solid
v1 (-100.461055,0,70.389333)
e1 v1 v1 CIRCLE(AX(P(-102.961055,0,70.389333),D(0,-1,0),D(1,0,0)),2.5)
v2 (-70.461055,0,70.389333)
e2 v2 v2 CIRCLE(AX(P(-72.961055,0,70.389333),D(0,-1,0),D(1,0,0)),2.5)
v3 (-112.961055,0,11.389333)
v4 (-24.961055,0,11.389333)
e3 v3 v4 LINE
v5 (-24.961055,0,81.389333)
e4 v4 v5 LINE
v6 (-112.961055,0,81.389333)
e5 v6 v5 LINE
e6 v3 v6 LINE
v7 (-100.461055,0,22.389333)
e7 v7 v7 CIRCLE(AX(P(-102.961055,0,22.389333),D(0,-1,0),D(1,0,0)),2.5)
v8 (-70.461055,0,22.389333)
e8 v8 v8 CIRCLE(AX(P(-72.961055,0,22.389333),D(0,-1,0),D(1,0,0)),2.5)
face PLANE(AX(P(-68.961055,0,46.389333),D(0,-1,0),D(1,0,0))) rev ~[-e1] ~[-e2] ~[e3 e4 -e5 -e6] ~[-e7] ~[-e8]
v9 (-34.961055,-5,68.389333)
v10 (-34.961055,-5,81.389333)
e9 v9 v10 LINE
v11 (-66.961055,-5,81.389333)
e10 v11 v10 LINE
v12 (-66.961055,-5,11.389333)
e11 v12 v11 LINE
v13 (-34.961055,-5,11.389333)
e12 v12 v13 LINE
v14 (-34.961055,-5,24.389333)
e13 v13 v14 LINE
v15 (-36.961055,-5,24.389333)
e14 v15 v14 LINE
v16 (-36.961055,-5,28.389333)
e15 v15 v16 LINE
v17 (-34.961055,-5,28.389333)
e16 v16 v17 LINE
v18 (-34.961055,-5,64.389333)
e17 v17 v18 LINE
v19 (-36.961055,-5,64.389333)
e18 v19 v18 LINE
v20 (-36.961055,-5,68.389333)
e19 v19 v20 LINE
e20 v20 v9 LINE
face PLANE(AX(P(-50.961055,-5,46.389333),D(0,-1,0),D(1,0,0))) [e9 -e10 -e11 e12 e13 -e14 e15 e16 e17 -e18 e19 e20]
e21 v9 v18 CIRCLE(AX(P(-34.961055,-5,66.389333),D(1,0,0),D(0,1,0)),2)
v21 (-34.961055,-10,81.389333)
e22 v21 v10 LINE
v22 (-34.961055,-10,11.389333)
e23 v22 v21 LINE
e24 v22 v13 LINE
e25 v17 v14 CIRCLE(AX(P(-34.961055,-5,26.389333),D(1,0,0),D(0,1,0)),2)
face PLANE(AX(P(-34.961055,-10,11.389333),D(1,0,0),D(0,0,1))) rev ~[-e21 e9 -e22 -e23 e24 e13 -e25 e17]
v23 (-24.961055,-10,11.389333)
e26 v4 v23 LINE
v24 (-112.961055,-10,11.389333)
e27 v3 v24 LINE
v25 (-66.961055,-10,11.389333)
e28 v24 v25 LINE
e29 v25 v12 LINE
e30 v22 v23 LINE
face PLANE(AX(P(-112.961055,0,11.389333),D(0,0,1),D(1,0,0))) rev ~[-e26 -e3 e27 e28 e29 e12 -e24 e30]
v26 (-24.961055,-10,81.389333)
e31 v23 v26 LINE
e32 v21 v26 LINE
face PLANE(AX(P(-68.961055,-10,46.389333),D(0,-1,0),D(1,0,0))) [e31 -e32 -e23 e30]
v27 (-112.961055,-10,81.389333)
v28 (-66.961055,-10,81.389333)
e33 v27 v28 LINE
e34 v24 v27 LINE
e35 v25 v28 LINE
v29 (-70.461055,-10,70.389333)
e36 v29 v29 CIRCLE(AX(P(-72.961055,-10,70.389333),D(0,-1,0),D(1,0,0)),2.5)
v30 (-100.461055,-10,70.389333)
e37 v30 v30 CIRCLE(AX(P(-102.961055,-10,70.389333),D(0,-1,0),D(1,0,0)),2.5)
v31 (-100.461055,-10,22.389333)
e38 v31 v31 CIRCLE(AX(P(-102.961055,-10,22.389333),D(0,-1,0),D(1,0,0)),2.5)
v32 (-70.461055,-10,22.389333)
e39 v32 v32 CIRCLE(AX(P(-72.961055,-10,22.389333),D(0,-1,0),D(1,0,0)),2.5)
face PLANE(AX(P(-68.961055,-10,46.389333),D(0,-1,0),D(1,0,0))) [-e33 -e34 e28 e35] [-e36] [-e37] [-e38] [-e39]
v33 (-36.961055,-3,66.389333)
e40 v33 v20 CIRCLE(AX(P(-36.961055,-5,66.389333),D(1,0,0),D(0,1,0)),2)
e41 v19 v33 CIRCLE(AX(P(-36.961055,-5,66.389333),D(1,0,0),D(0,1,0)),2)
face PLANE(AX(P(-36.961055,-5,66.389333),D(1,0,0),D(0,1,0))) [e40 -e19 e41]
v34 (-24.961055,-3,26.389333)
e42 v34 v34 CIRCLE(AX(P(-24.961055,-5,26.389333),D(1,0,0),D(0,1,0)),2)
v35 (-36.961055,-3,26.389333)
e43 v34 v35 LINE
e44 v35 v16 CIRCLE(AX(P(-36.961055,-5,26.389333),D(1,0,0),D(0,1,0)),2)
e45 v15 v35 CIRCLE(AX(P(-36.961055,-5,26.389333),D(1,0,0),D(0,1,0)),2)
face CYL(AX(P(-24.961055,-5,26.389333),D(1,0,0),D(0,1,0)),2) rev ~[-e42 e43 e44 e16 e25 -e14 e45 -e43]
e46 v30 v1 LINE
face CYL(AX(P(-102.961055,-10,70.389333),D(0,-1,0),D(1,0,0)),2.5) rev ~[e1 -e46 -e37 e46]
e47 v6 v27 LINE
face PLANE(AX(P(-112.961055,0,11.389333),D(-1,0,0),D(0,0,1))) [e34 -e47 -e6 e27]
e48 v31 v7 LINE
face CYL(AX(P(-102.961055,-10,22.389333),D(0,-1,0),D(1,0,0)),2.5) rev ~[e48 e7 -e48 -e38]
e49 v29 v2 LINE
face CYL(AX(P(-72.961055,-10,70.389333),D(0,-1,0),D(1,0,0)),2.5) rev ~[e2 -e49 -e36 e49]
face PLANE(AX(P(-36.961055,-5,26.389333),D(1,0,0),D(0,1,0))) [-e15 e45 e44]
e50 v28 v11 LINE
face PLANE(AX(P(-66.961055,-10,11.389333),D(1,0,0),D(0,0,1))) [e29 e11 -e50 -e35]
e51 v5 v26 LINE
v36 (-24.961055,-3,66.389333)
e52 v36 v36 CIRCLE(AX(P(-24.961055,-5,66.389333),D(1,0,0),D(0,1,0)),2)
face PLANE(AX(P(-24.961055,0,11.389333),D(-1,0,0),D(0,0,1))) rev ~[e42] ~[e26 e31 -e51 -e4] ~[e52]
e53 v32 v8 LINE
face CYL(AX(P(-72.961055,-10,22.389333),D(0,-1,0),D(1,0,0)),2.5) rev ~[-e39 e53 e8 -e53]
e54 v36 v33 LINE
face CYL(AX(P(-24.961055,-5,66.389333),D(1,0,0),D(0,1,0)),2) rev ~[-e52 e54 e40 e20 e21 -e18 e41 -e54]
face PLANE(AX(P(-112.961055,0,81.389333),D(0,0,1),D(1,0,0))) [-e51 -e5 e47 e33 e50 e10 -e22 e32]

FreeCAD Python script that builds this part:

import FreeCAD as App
import Part
import Sketcher

V = App.Vector

doc = App.newDocument("Part")
body = doc.addObject("PartDesign::Body", "Body")

sketch1 = body.newObject("Sketcher::SketchObject", "Sketch")
sketch1.AttachmentSupport = (doc.getObject("XZ_Plane"), [""])
sketch1.MapMode = "FlatFace"
sketch1.addGeometry(Part.LineSegment(V(-113, 81, 0), V(-113, 11, 0)), False)
sketch1.addGeometry(Part.LineSegment(V(-113, 11, 0), V(-25, 11, 0)), False)
sketch1.addGeometry(Part.LineSegment(V(-25, 11, 0), V(-25, 81, 0)), False)
sketch1.addGeometry(Part.LineSegment(V(-25, 81, 0), V(-113, 81, 0)), False)
sketch1.addConstraint(Sketcher.Constraint("Coincident", 0, 2, 1, 1))
sketch1.addConstraint(Sketcher.Constraint("Coincident", 1, 2, 2, 1))
sketch1.addConstraint(Sketcher.Constraint("Coincident", 2, 2, 3, 1))
sketch1.addConstraint(Sketcher.Constraint("Coincident", 3, 2, 0, 1))
sketch1.addConstraint(Sketcher.Constraint("Vertical", 0))
sketch1.addConstraint(Sketcher.Constraint("Horizontal", 1))
sketch1.addConstraint(Sketcher.Constraint("Vertical", 2))
sketch1.addConstraint(Sketcher.Constraint("Horizontal", 3))
sketch1.addConstraint(Sketcher.Constraint("DistanceX", 1, 1, 1, 2, 88.0))
sketch1.addConstraint(Sketcher.Constraint("DistanceY", 0, 2, 0, 1, 70.0))
sketch1.addConstraint(Sketcher.Constraint("DistanceX", 0, 2, -1, 1, 112.961055))
sketch1.addConstraint(Sketcher.Constraint("DistanceY", -1, 1, 0, 2, 11.389333))
pad1 = body.newObject("PartDesign::Pad", "Pad")
pad1.Profile = sketch1
pad1.Length = 10

sketch2 = body.newObject("Sketcher::SketchObject", "Sketch001")
sketch2.AttachmentSupport = (doc.getObject("XZ_Plane"), [""])
sketch2.MapMode = "FlatFace"
sketch2.AttachmentOffset = App.Placement(V(0, 0, 10), App.Rotation())
sketch2.addGeometry(Part.LineSegment(V(-67, 81, 0), V(-67, 11, 0)), False)
sketch2.addGeometry(Part.LineSegment(V(-67, 11, 0), V(-35, 11, 0)), False)
sketch2.addGeometry(Part.LineSegment(V(-35, 11, 0), V(-35, 81, 0)), False)
sketch2.addGeometry(Part.LineSegment(V(-35, 81, 0), V(-67, 81, 0)), False)
sketch2.addConstraint(Sketcher.Constraint("Coincident", 0, 2, 1, 1))
sketch2.addConstraint(Sketcher.Constraint("Coincident", 1, 2, 2, 1))
sketch2.addConstraint(Sketcher.Constraint("Coincident", 2, 2, 3, 1))
sketch2.addConstraint(Sketcher.Constraint("Coincident", 3, 2, 0, 1))
sketch2.addConstraint(Sketcher.Constraint("Vertical", 0))
sketch2.addConstraint(Sketcher.Constraint("Horizontal", 1))
sketch2.addConstraint(Sketcher.Constraint("Vertical", 2))
sketch2.addConstraint(Sketcher.Constraint("Horizontal", 3))
sketch2.addConstraint(Sketcher.Constraint("DistanceX", 1, 1, 1, 2, 32.0))
sketch2.addConstraint(Sketcher.Constraint("DistanceY", 0, 2, 0, 1, 70.0))
sketch2.addConstraint(Sketcher.Constraint("DistanceX", 0, 2, -1, 1, 66.961055))
sketch2.addConstraint(Sketcher.Constraint("DistanceY", -1, 1, 0, 2, 11.389333))
pocket1 = body.newObject("PartDesign::Pocket", "Pocket")
pocket1.Profile = sketch2
pocket1.Length = 5

sketch3 = body.newObject("Sketcher::SketchObject", "Sketch002")
sketch3.AttachmentSupport = (doc.getObject("XZ_Plane"), [""])
sketch3.MapMode = "FlatFace"
sketch3.AttachmentOffset = App.Placement(V(0, 0, 10), App.Rotation())
sketch3.addGeometry(Part.Circle(V(-103, 70.4, 0), V(0, 0, 1), 2.5), False)
sketch3.addGeometry(Part.Circle(V(-73, 70.4, 0), V(0, 0, 1), 2.5), False)
sketch3.addGeometry(Part.Circle(V(-103, 22.4, 0), V(0, 0, 1), 2.5), False)
sketch3.addGeometry(Part.Circle(V(-73, 22.4, 0), V(0, 0, 1), 2.5), False)
sketch3.addConstraint(Sketcher.Constraint("Equal", 0, 1))
sketch3.addConstraint(Sketcher.Constraint("Equal", 1, 2))
sketch3.addConstraint(Sketcher.Constraint("Equal", 2, 3))
sketch3.addConstraint(Sketcher.Constraint("Horizontal", 0, 3, 1, 3))
sketch3.addConstraint(Sketcher.Constraint("Horizontal", 2, 3, 3, 3))
sketch3.addConstraint(Sketcher.Constraint("Vertical", 0, 3, 2, 3))
sketch3.addConstraint(Sketcher.Constraint("Vertical", 1, 3, 3, 3))
sketch3.addConstraint(Sketcher.Constraint("Diameter", 0, 5.0))
sketch3.addConstraint(Sketcher.Constraint("DistanceX", 0, 3, 1, 3, 30.0))
sketch3.addConstraint(Sketcher.Constraint("DistanceY", 2, 3, 0, 3, 48.0))
sketch3.addConstraint(Sketcher.Constraint("DistanceX", 0, 3, -1, 1, 102.961055))
sketch3.addConstraint(Sketcher.Constraint("DistanceY", -1, 1, 0, 3, 70.389333))
pocket2 = body.newObject("PartDesign::Pocket", "Pocket001")
pocket2.Profile = sketch3
pocket2.Type = "ThroughAll"

sketch4 = body.newObject("Sketcher::SketchObject", "Sketch003")
sketch4.AttachmentSupport = (doc.getObject("YZ_Plane"), [""])
sketch4.MapMode = "FlatFace"
sketch4.AttachmentOffset = App.Placement(V(0, 0, -24.961055), App.Rotation())
sketch4.addGeometry(Part.Circle(V(-5, 26.4, 0), V(0, 0, 1), 2), False)
sketch4.addGeometry(Part.Circle(V(-5, 66.4, 0), V(0, 0, 1), 2), False)
sketch4.addConstraint(Sketcher.Constraint("Equal", 0, 1))
sketch4.addConstraint(Sketcher.Constraint("Vertical", 0, 3, 1, 3))
sketch4.addConstraint(Sketcher.Constraint("Diameter", 0, 4.0))
sketch4.addConstraint(Sketcher.Constraint("DistanceX", 0, 3, -1, 1, 5.0))
sketch4.addConstraint(Sketcher.Constraint("DistanceY", 0, 3, 1, 3, 40.0))
sketch4.addConstraint(Sketcher.Constraint("DistanceY", -1, 1, 0, 3, 26.389333))
pocket3 = body.newObject("PartDesign::Pocket", "Pocket002")
pocket3.Profile = sketch4
pocket3.Length = 12

doc.recompute()
